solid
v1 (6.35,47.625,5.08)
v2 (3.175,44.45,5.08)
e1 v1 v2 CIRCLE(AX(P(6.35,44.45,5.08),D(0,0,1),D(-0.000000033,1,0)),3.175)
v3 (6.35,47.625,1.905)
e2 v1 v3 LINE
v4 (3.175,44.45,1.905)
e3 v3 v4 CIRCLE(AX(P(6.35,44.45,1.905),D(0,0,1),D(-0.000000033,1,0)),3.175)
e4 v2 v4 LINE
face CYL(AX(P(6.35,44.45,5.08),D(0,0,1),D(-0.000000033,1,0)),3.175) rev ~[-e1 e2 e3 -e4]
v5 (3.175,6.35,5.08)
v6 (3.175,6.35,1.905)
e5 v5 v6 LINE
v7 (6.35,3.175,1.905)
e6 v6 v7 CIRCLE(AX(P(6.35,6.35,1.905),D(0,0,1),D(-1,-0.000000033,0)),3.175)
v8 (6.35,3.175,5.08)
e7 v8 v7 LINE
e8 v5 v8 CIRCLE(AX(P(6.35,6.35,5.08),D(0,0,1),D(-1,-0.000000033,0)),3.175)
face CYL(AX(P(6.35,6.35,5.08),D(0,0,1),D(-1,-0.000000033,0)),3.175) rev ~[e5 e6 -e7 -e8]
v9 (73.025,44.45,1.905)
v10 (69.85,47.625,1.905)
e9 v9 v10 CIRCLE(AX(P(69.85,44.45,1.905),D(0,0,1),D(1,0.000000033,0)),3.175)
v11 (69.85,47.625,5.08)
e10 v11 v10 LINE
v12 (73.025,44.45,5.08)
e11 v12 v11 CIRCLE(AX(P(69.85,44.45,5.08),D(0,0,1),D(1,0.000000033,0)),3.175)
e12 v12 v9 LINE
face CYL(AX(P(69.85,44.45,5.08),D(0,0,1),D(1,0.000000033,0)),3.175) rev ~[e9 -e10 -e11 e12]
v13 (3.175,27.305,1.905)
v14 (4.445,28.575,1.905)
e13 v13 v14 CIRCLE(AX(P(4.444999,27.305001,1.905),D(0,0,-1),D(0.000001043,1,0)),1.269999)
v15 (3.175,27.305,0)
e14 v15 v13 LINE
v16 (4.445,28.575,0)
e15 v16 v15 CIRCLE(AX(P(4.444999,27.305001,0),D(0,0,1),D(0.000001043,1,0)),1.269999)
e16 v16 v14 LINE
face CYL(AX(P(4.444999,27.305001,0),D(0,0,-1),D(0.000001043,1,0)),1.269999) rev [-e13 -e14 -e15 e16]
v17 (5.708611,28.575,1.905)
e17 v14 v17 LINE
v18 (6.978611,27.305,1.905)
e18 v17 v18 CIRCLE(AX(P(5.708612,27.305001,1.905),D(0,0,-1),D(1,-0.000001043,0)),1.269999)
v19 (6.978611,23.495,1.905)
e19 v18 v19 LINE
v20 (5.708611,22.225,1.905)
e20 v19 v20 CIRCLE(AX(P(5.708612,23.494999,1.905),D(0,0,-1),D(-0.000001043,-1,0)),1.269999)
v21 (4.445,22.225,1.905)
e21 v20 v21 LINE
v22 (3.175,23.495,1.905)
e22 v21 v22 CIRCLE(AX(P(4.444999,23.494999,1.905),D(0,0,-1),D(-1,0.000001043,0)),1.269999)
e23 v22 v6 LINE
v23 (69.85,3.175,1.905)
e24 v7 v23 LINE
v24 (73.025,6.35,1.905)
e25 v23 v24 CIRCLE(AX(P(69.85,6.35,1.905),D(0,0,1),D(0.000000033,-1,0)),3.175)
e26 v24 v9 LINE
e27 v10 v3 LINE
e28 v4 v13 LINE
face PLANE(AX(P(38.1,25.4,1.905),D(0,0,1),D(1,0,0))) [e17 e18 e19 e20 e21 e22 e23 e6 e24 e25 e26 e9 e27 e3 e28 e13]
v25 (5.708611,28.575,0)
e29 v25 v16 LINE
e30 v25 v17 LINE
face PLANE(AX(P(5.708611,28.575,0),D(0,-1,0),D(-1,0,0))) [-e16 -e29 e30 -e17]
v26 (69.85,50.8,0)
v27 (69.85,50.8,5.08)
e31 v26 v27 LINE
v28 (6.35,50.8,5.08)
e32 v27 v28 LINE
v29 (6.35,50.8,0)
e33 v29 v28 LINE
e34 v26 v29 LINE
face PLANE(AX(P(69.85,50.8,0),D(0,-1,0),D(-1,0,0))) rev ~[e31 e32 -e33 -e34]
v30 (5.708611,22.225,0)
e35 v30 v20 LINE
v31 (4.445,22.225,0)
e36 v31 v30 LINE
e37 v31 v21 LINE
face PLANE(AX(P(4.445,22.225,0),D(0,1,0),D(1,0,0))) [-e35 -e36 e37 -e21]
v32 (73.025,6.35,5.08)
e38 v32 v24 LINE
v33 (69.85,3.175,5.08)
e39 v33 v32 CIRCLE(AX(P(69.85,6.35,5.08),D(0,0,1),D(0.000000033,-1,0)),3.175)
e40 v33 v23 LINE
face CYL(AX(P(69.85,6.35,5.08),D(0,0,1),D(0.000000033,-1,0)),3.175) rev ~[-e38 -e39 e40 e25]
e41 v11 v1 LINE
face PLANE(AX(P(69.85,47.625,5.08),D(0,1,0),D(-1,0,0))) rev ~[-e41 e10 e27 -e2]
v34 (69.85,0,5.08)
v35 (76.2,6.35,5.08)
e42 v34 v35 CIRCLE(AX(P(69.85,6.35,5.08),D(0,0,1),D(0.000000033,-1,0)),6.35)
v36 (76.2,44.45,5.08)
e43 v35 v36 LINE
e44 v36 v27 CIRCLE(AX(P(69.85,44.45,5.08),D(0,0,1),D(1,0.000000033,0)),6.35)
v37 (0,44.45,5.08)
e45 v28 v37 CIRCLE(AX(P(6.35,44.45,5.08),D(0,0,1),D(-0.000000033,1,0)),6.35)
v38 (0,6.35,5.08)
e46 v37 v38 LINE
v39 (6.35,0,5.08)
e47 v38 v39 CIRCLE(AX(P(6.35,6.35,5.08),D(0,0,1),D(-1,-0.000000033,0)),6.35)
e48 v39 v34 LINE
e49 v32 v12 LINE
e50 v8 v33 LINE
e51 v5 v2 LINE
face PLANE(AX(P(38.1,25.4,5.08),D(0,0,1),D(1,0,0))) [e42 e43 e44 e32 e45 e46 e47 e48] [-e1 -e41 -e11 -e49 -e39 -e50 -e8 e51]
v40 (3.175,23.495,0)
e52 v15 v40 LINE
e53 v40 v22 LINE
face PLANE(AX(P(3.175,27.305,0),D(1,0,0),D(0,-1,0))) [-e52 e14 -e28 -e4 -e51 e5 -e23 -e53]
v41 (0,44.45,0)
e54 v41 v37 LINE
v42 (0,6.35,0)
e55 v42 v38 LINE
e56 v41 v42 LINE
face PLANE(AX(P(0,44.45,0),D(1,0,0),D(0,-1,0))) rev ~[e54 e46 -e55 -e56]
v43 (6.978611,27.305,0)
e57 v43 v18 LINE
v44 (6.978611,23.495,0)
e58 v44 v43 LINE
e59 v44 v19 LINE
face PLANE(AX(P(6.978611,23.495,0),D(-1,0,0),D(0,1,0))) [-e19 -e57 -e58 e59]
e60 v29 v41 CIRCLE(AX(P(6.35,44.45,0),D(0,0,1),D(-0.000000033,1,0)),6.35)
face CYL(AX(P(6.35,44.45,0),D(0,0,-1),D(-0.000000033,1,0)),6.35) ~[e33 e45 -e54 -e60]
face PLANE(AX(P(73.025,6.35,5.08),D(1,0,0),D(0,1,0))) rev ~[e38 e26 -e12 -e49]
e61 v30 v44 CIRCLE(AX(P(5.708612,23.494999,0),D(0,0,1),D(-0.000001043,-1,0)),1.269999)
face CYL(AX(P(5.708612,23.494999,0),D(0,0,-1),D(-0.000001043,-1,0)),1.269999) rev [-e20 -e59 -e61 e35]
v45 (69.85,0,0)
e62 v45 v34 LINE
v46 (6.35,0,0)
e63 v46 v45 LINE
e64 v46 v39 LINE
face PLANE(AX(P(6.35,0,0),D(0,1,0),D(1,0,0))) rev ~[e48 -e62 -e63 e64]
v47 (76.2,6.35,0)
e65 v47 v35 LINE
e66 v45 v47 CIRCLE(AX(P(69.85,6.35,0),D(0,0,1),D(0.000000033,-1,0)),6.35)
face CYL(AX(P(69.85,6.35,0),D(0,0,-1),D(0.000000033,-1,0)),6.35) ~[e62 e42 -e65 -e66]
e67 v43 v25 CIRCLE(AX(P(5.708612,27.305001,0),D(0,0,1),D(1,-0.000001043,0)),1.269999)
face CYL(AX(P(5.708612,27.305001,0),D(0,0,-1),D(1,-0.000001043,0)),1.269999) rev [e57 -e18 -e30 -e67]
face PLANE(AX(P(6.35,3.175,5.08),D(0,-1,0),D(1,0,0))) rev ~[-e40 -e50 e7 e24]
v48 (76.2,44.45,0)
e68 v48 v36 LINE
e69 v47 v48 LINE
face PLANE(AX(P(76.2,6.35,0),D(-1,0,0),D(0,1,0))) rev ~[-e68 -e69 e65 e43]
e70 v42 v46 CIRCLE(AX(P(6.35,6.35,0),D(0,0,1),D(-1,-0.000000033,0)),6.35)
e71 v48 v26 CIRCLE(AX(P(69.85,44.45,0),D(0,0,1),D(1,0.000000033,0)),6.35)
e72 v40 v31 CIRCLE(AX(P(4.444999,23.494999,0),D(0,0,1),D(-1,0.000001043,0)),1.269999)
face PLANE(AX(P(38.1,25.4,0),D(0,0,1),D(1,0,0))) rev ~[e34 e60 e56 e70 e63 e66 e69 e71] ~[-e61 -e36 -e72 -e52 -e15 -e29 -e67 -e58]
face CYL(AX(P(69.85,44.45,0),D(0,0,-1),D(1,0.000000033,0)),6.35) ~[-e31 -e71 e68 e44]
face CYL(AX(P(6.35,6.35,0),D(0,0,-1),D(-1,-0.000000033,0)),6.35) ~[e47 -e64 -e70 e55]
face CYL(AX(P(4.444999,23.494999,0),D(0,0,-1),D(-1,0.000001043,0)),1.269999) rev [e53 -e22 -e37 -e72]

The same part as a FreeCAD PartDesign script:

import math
import FreeCAD as App
import Part
import Sketcher
Q = App.Units.Quantity

doc = App.newDocument("Part")
body = doc.addObject("PartDesign::Body", "Body")

sketch1 = body.newObject("Sketcher::SketchObject", "Sketch")
sketch1.AttachmentSupport = (doc.getObject("XY_Plane"), [""])
sketch1.MapMode = "FlatFace"
sketch1.addGeometry([
    Part.ArcOfCircle(Part.Circle(App.Vector(6, 6, 0), App.Vector(0, 0, 1), 6), math.radians(-180), math.radians(-90)),
    Part.LineSegment(App.Vector(6, 0, 0), App.Vector(70, 0, 0)),
    Part.ArcOfCircle(Part.Circle(App.Vector(70, 6, 0), App.Vector(0, 0, 1), 6), math.radians(-90), math.radians(0)),
    Part.LineSegment(App.Vector(76, 6, 0), App.Vector(76, 44, 0)),
    Part.ArcOfCircle(Part.Circle(App.Vector(70, 44, 0), App.Vector(0, 0, 1), 6), math.radians(0), math.radians(90)),
    Part.LineSegment(App.Vector(70, 51, 0), App.Vector(6, 51, 0)),
    Part.ArcOfCircle(Part.Circle(App.Vector(6, 44, 0), App.Vector(0, 0, 1), 6), math.radians(90), math.radians(180)),
    Part.LineSegment(App.Vector(0, 44, 0), App.Vector(0, 6, 0)),
], False)
sketch1.addConstraint([
    Sketcher.Constraint("Tangent", 0, 2, 1, 1),
    Sketcher.Constraint("Tangent", 1, 2, 2, 1),
    Sketcher.Constraint("Tangent", 2, 2, 3, 1),
    Sketcher.Constraint("Tangent", 3, 2, 4, 1),
    Sketcher.Constraint("Tangent", 4, 2, 5, 1),
    Sketcher.Constraint("Tangent", 5, 2, 6, 1),
    Sketcher.Constraint("Tangent", 6, 2, 7, 1),
    Sketcher.Constraint("Tangent", 7, 2, 0, 1),
    Sketcher.Constraint("Horizontal", 1),
    Sketcher.Constraint("Vertical", 3),
    Sketcher.Constraint("Horizontal", 5),
    Sketcher.Constraint("Vertical", 7),
    Sketcher.Constraint("Equal", 0, 2),
    Sketcher.Constraint("Equal", 2, 4),
    Sketcher.Constraint("Equal", 4, 6),
    Sketcher.Constraint("PointOnObject", 0, 2, -1),
    Sketcher.Constraint("PointOnObject", 6, 2, -2),
    Sketcher.Constraint("Radius", 0, Q("0.25 in")),
    Sketcher.Constraint("DistanceX", 1, 1, 1, 2, Q("2.5 in")),
    Sketcher.Constraint("DistanceY", 3, 1, 3, 2, Q("1.5 in")),
])
pad1 = body.newObject("PartDesign::Pad", "Pad")
pad1.Profile = sketch1
pad1.Length = Q("0.2 in")

sketch2 = body.newObject("Sketcher::SketchObject", "Sketch001")
sketch2.AttachmentSupport = (doc.getObject("XY_Plane"), [""])
sketch2.MapMode = "FlatFace"
sketch2.AttachmentOffset = App.Placement(App.Vector(0, 0, 0.2 * 25.4), App.Rotation())
sketch2.addGeometry([
    Part.LineSegment(App.Vector(69.8, 47.6, 0), App.Vector(6.3, 47.6, 0)),
    Part.ArcOfCircle(Part.Circle(App.Vector(6.4, 44.4, 0), App.Vector(0, 0, 1), 3.2), math.radians(90), math.radians(180)),
    Part.LineSegment(App.Vector(3.2, 44.5, 0), App.Vector(3.2, 6.3, 0)),
    Part.ArcOfCircle(Part.Circle(App.Vector(6.4, 6.4, 0), App.Vector(0, 0, 1), 3.2), math.radians(-180), math.radians(-90)),
    Part.LineSegment(App.Vector(6.3, 3.2, 0), App.Vector(69.8, 3.2, 0)),
    Part.ArcOfCircle(Part.Circle(App.Vector(69.8, 6.4, 0), App.Vector(0, 0, 1), 3.2), math.radians(-90), math.radians(0)),
    Part.LineSegment(App.Vector(73, 6.3, 0), App.Vector(73, 44.5, 0)),
    Part.ArcOfCircle(Part.Circle(App.Vector(69.8, 44.4, 0), App.Vector(0, 0, 1), 3.2), math.radians(0), math.radians(90)),
], False)
sketch2.addConstraint([
    Sketcher.Constraint("Tangent", 0, 2, 1, 1),
    Sketcher.Constraint("Tangent", 1, 2, 2, 1),
    Sketcher.Constraint("Tangent", 2, 2, 3, 1),
    Sketcher.Constraint("Tangent", 3, 2, 4, 1),
    Sketcher.Constraint("Tangent", 4, 2, 5, 1),
    Sketcher.Constraint("Tangent", 5, 2, 6, 1),
    Sketcher.Constraint("Tangent", 6, 2, 7, 1),
    Sketcher.Constraint("Tangent", 7, 2, 0, 1),
    Sketcher.Constraint("Horizontal", 0),
    Sketcher.Constraint("Vertical", 2),
    Sketcher.Constraint("Horizontal", 4),
    Sketcher.Constraint("Vertical", 6),
    Sketcher.Constraint("Equal", 1, 3),
    Sketcher.Constraint("Equal", 3, 5),
    Sketcher.Constraint("Equal", 5, 7),
    Sketcher.Constraint("DistanceX", 0, 2, 0, 1, Q("2.5 in")),
    Sketcher.Constraint("DistanceY", 2, 2, 2, 1, Q("1.5 in")),
    Sketcher.Constraint("Radius", 1, Q("0.125 in")),
    Sketcher.Constraint("DistanceX", -1, 1, 1, 3, Q("0.25 in")),
    Sketcher.Constraint("DistanceY", -1, 1, 1, 3, Q("1.75 in")),
])
pocket1 = body.newObject("PartDesign::Pocket", "Pocket")
pocket1.Profile = sketch2
pocket1.Length = Q("0.125 in")

sketch3 = body.newObject("Sketcher::SketchObject", "Sketch002")
sketch3.AttachmentSupport = (doc.getObject("XY_Plane"), [""])
sketch3.MapMode = "FlatFace"
sketch3.addGeometry([
    Part.LineSegment(App.Vector(5.7, 28.6, 0), App.Vector(4.4, 28.6, 0)),
    Part.ArcOfCircle(Part.Circle(App.Vector(4.4, 27.3, 0), App.Vector(0, 0, 1), 1.3), math.radians(90), math.radians(180)),
    Part.LineSegment(App.Vector(3.2, 27.3, 0), App.Vector(3.2, 23.5, 0)),
    Part.ArcOfCircle(Part.Circle(App.Vector(4.4, 23.5, 0), App.Vector(0, 0, 1), 1.3), math.radians(180), math.radians(270)),
    Part.LineSegment(App.Vector(4.4, 22.2, 0), App.Vector(5.7, 22.2, 0)),
    Part.ArcOfCircle(Part.Circle(App.Vector(5.7, 23.5, 0), App.Vector(0, 0, 1), 1.3), math.radians(-90), math.radians(0)),
    Part.LineSegment(App.Vector(7, 23.5, 0), App.Vector(7, 27.3, 0)),
    Part.ArcOfCircle(Part.Circle(App.Vector(5.7, 27.3, 0), App.Vector(0, 0, 1), 1.3), math.radians(0), math.radians(90)),
], False)
sketch3.addConstraint([
    Sketcher.Constraint("Tangent", 0, 2, 1, 1),
    Sketcher.Constraint("Tangent", 1, 2, 2, 1),
    Sketcher.Constraint("Tangent", 2, 2, 3, 1),
    Sketcher.Constraint("Tangent", 3, 2, 4, 1),
    Sketcher.Constraint("Tangent", 4, 2, 5, 1),
    Sketcher.Constraint("Tangent", 5, 2, 6, 1),
    Sketcher.Constraint("Tangent", 6, 2, 7, 1),
    Sketcher.Constraint("Tangent", 7, 2, 0, 1),
    Sketcher.Constraint("Horizontal", 0),
    Sketcher.Constraint("Vertical", 2),
    Sketcher.Constraint("Horizontal", 4),
    Sketcher.Constraint("Vertical", 6),
    Sketcher.Constraint("Equal", 1, 3),
    Sketcher.Constraint("Equal", 3, 5),
    Sketcher.Constraint("Equal", 5, 7),
    Sketcher.Constraint("Radius", 1, Q("0.0499999 in")),
    Sketcher.Constraint("DistanceY", 2, 2, 2, 1, Q("0.15 in")),
    Sketcher.Constraint("DistanceX", -1, 1, 1, 3, Q("0.1749999 in")),
    Sketcher.Constraint("DistanceY", -1, 1, 1, 3, Q("1.0750001 in")),
    Sketcher.Constraint("DistanceX", 0, 2, 0, 1, 1.263611),
])
pocket2 = body.newObject("PartDesign::Pocket", "Pocket001")
pocket2.Profile = sketch3
pocket2.Length = Q("1 in")
pocket2.Reversed = True

doc.recompute()
